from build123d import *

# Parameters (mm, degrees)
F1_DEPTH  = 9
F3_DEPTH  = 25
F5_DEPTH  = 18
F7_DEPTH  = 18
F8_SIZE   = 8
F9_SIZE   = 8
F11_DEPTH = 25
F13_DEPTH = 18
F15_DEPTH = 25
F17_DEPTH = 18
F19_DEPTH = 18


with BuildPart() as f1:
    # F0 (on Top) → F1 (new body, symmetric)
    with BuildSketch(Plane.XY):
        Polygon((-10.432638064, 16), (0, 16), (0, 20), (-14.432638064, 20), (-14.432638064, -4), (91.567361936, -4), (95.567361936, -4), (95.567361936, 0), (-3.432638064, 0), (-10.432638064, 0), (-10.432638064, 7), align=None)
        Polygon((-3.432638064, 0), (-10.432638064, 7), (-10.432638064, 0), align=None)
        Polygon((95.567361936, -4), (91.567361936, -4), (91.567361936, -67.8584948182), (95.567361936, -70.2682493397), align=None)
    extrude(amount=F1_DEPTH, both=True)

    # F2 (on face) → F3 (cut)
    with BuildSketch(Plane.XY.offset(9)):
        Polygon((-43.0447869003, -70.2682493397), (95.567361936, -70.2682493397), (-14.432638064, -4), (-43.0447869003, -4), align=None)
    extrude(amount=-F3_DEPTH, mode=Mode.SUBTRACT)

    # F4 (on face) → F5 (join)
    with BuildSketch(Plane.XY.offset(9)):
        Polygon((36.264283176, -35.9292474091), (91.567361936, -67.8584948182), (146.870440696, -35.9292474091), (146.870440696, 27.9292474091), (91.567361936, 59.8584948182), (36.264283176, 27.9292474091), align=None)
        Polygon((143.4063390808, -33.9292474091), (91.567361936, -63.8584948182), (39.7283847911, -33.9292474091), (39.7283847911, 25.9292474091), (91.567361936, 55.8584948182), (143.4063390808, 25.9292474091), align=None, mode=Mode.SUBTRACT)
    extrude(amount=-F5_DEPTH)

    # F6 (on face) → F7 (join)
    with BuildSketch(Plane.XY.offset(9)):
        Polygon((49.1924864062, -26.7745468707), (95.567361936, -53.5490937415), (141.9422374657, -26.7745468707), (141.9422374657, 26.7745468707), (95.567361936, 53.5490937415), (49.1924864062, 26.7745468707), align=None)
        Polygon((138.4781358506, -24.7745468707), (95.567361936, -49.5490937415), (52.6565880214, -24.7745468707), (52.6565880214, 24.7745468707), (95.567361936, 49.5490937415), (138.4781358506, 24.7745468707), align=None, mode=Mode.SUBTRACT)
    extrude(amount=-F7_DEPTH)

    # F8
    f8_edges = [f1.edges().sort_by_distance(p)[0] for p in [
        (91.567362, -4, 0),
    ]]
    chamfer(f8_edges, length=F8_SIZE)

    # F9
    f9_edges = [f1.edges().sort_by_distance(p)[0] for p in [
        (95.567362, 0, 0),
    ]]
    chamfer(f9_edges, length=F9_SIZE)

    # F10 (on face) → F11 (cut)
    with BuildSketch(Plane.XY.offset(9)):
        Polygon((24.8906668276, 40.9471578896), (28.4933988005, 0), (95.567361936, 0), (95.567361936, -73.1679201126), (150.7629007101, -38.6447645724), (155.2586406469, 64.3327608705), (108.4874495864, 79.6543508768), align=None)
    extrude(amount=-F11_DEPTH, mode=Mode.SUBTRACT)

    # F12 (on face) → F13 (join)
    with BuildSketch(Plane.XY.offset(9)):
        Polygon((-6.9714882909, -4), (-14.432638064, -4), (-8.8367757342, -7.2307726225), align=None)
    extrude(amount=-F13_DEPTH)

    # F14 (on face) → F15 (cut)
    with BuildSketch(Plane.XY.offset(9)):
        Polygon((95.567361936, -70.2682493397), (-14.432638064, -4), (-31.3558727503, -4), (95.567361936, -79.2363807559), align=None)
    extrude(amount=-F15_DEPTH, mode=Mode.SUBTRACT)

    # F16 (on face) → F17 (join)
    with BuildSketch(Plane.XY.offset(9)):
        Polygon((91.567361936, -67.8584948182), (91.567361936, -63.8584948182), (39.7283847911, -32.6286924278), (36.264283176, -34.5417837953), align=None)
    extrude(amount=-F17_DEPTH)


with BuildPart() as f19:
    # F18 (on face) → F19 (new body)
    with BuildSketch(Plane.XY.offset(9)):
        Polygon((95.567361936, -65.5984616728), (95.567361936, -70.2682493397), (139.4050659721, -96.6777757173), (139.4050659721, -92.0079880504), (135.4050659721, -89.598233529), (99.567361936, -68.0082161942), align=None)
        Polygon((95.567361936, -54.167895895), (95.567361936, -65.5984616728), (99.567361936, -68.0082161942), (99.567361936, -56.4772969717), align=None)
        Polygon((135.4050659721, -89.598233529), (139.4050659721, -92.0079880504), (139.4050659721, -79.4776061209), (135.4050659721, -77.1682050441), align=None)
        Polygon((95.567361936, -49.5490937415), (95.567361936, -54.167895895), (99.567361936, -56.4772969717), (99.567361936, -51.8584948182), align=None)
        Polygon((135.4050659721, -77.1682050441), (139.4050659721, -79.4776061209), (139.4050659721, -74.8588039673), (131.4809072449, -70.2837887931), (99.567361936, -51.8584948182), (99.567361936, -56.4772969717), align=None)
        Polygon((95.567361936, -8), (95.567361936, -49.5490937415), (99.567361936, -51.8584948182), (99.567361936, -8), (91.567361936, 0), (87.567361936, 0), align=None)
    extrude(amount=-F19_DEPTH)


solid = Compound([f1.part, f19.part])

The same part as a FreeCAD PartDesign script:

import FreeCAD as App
import Part
import Sketcher
Q = App.Units.Quantity


def edges_at(feature, points):
    """Names of the edges that pass closest to the given points."""
    edges = feature.Shape.Edges
    near = lambda p: min(range(len(edges)), key=lambda i: edges[i].distToShape(Part.Vertex(*p))[0])
    return sorted({f"Edge{near(p) + 1}" for p in points})


def add_polygon(sketch, points):
    """Adds a closed chain of lines whose ends are joined by coincident constraints."""
    first, n = sketch.GeometryCount, len(points)
    for a, b in zip(points, points[1:] + points[:1]):
        sketch.addGeometry(Part.LineSegment(App.Vector(*a, 0), App.Vector(*b, 0)), False)
    for i in range(n):
        sketch.addConstraint(Sketcher.Constraint("Coincident", first + i, 2, first + (i + 1) % n, 1))

doc = App.newDocument("Part")
params = doc.addObject("Spreadsheet::Sheet", "Params")
for row, (alias, value) in enumerate([
    ("sketch1_width", "106 mm"),
    ("sketch1_width2", "99 mm"),
    ("sketch1_height", "4 mm"),
    ("sketch1_height2", "24 mm"),
    ("sketch1_height3", "9 mm"),
    ("pad1_length", "18 mm"),
    ("pocket1_length", "25 mm"),
    ("pad2_length", "18 mm"),
    ("pad3_length", "18 mm"),
    ("chamfer_size", "8 mm"),
    ("chamfer2_size", "8 mm"),
    ("pocket2_length", "25 mm"),
    ("pad4_length", "18 mm"),
    ("pocket3_length", "25 mm"),
    ("sketch8_height", "4 mm"),
    ("pad5_length", "18 mm"),
    ("sketch9_width", "4 mm"),
    ("pad6_length", "18 mm"),
], start=1):
    params.set(f"A{row}", alias)
    params.set(f"B{row}", "=" + value)
    params.setAlias(f"B{row}", alias)

body = doc.addObject("PartDesign::Body", "Body")

# Sketch on XY plane
sketch1 = doc.addObject("Sketcher::SketchObject", "Sketch")
body.addObject(sketch1)
sketch1.AttachmentSupport = (doc.XY_Plane, [""])
sketch1.MapMode = "FlatFace"
add_polygon(sketch1, [(-10.4, 16), (0, 16), (0, 20), (-14.4, 20), (-14.4, -4), (91.6, -4), (91.6, -67.9), (95.6, -70.3), (95.6, 0), (-3.4, 0), (-10.4, 7)])  # lines 0-10
sketch1.addConstraint([
    Sketcher.Constraint("Horizontal", 0),
    Sketcher.Constraint("Vertical", 1),
    Sketcher.Constraint("Horizontal", 2),
    Sketcher.Constraint("Vertical", 3),
    Sketcher.Constraint("Horizontal", 4),
    Sketcher.Constraint("Vertical", 5),
    Sketcher.Constraint("Vertical", 7),
    Sketcher.Constraint("Horizontal", 8),
    Sketcher.Constraint("Vertical", 10),
    Sketcher.Constraint("PointOnObject", 0, 2, -2),
    Sketcher.Constraint("PointOnObject", 7, 2, -1),
    Sketcher.Constraint("DistanceX", 4, 1, 4, 2, 106.0),
    Sketcher.Constraint("DistanceX", 8, 2, 8, 1, 99.0),
    Sketcher.Constraint("DistanceY", 1, 1, 1, 2, 4.0),
    Sketcher.Constraint("DistanceY", 3, 2, 3, 1, 24.0),
    Sketcher.Constraint("DistanceY", 10, 1, 10, 2, 9.0),
    Sketcher.Constraint("Angle", 9, Q("135 deg")),
    Sketcher.Constraint("DistanceY", -1, 1, 0, 2, 16.0),
    Sketcher.Constraint("DistanceX", 5, 2, 6, 2, 4.0),
    Sketcher.Constraint("DistanceX", 0, 1, 0, 2, 10.432638),
    Sketcher.Constraint("DistanceY", 7, 1, 7, 2, 70.268249),
    Sketcher.Constraint("DistanceY", 5, 2, 5, 1, 63.858495),
])
sketch1.setExpression("Constraints[22]", "Params.sketch1_width")
sketch1.setExpression("Constraints[23]", "Params.sketch1_width2")
sketch1.setExpression("Constraints[24]", "Params.sketch1_height")
sketch1.setExpression("Constraints[25]", "Params.sketch1_height2")
sketch1.setExpression("Constraints[26]", "Params.sketch1_height3")
pad1 = doc.addObject("PartDesign::Pad", "Pad")
body.addObject(pad1)
pad1.Profile = sketch1
pad1.setExpression("Length", "Params.pad1_length")
pad1.Midplane = True

# Sketch on XY plane
sketch2 = doc.addObject("Sketcher::SketchObject", "Sketch001")
body.addObject(sketch2)
sketch2.AttachmentSupport = (doc.XY_Plane, [""])
sketch2.MapMode = "FlatFace"
sketch2.AttachmentOffset = App.Placement(App.Vector(0, 0, 9), App.Rotation())
add_polygon(sketch2, [(-43, -70), (96, -70), (-14, -4), (-43, -4)])  # lines 0-3
sketch2.addConstraint([
    Sketcher.Constraint("Horizontal", 0),
    Sketcher.Constraint("Horizontal", 2),
    Sketcher.Constraint("Vertical", 3),
    Sketcher.Constraint("DistanceY", 1, 2, -1, 1, 4.0),
    Sketcher.Constraint("DistanceX", 1, 2, 0, 2, 110.0),
    Sketcher.Constraint("DistanceX", 0, 1, 0, 2, 138.612149),
    Sketcher.Constraint("DistanceY", 3, 2, 3, 1, 66.268249),
    Sketcher.Constraint("DistanceX", -1, 1, 0, 2, 95.567362),
])
pocket1 = doc.addObject("PartDesign::Pocket", "Pocket")
body.addObject(pocket1)
pocket1.Profile = sketch2
pocket1.setExpression("Length", "Params.pocket1_length")

# Sketch on XY plane
sketch3 = doc.addObject("Sketcher::SketchObject", "Sketch002")
body.addObject(sketch3)
sketch3.AttachmentSupport = (doc.XY_Plane, [""])
sketch3.MapMode = "FlatFace"
sketch3.AttachmentOffset = App.Placement(App.Vector(0, 0, 9), App.Rotation())
add_polygon(sketch3, [(36, -36), (92, -68), (147, -36), (147, 28), (92, 60), (36, 28)])  # lines 0-5
add_polygon(sketch3, [(143, 26), (143, -34), (92, -64), (40, -34), (40, 26), (92, 56)])  # lines 6-11
sketch3.addConstraint([
    Sketcher.Constraint("Vertical", 2),
    Sketcher.Constraint("Vertical", 5),
    Sketcher.Constraint("Vertical", 6),
    Sketcher.Constraint("Vertical", 9),
    Sketcher.Constraint("Parallel", 0, 3),
    Sketcher.Constraint("Parallel", 1, 4),
    Sketcher.Constraint("Parallel", 4, 7),
    Sketcher.Constraint("Parallel", 3, 8),
    Sketcher.Constraint("Parallel", 7, 10),
    Sketcher.Constraint("Parallel", 8, 11),
    Sketcher.Constraint("Horizontal", 2, 2, 4, 2),
    Sketcher.Constraint("Horizontal", 1, 2, 5, 2),
    Sketcher.Constraint("Horizontal", 6, 2, 8, 2),
    Sketcher.Constraint("Horizontal", 9, 2, 11, 2),
    Sketcher.Constraint("Vertical", 0, 2, 3, 2),
    Sketcher.Constraint("Vertical", 3, 2, 7, 2),
    Sketcher.Constraint("Angle", 0, Q("-30 deg")),
    Sketcher.Constraint("DistanceY", 1, 2, 6, 2, 2.0),
    Sketcher.Constraint("DistanceY", 0, 2, 7, 2, 4.0),
    Sketcher.Constraint("DistanceY", 9, 2, 4, 2, 2.0),
    Sketcher.Constraint("DistanceY", 2, 1, 2, 2, 63.858495),
    Sketcher.Constraint("DistanceX", -1, 1, 0, 2, 91.567362),
    Sketcher.Constraint("DistanceX", -1, 1, 1, 2, 146.870441),
    Sketcher.Constraint("DistanceY", 0, 2, -1, 1, 67.858495),
])
pad2 = doc.addObject("PartDesign::Pad", "Pad001")
body.addObject(pad2)
pad2.Profile = sketch3
pad2.setExpression("Length", "Params.pad2_length")
pad2.Reversed = True

# Sketch on XY plane
sketch4 = doc.addObject("Sketcher::SketchObject", "Sketch003")
body.addObject(sketch4)
sketch4.AttachmentSupport = (doc.XY_Plane, [""])
sketch4.MapMode = "FlatFace"
sketch4.AttachmentOffset = App.Placement(App.Vector(0, 0, 9), App.Rotation())
add_polygon(sketch4, [(49, -27), (96, -54), (142, -27), (142, 27), (96, 54), (49, 27)])  # lines 0-5
add_polygon(sketch4, [(138, 25), (138, -25), (96, -50), (53, -25), (53, 25), (96, 50)])  # lines 6-11
sketch4.addConstraint([
    Sketcher.Constraint("Vertical", 2),
    Sketcher.Constraint("Vertical", 5),
    Sketcher.Constraint("Vertical", 6),
    Sketcher.Constraint("Vertical", 9),
    Sketcher.Constraint("Symmetric", 0, 2, 3, 2, -1),
    Sketcher.Constraint("Symmetric", 7, 2, 10, 2, -1),
    Sketcher.Constraint("Parallel", 0, 3),
    Sketcher.Constraint("Parallel", 1, 4),
    Sketcher.Constraint("Parallel", 4, 7),
    Sketcher.Constraint("Parallel", 3, 8),
    Sketcher.Constraint("Parallel", 7, 10),
    Sketcher.Constraint("Parallel", 8, 11),
    Sketcher.Constraint("Horizontal", 2, 2, 4, 2),
    Sketcher.Constraint("Horizontal", 1, 2, 5, 2),
    Sketcher.Constraint("Horizontal", 6, 2, 8, 2),
    Sketcher.Constraint("Vertical", 3, 2, 7, 2),
    Sketcher.Constraint("Angle", 0, Q("-30 deg")),
    Sketcher.Constraint("DistanceY", 1, 2, 6, 2, 2.0),
    Sketcher.Constraint("DistanceY", 0, 2, 7, 2, 4.0),
    Sketcher.Constraint("DistanceY", 2, 1, 2, 2, 53.549094),
    Sketcher.Constraint("DistanceX", -1, 1, 0, 2, 95.567362),
    Sketcher.Constraint("DistanceX", -1, 1, 8, 2, 52.656588),
])
pad3 = doc.addObject("PartDesign::Pad", "Pad002")
body.addObject(pad3)
pad3.Profile = sketch4
pad3.setExpression("Length", "Params.pad3_length")
pad3.Reversed = True
doc.recompute()

chamfer = doc.addObject("PartDesign::Chamfer", "Chamfer")
body.addObject(chamfer)
chamfer.Base = (pad3, edges_at(pad3, [(91.567, -4, 0)]))
chamfer.setExpression("Size", "Params.chamfer_size")
doc.recompute()

chamfer2 = doc.addObject("PartDesign::Chamfer", "Chamfer001")
body.addObject(chamfer2)
chamfer2.Base = (chamfer, edges_at(chamfer, [(95.567, 0, 0)]))
chamfer2.setExpression("Size", "Params.chamfer2_size")

# Sketch on XY plane
sketch5 = doc.addObject("Sketcher::SketchObject", "Sketch004")
body.addObject(sketch5)
sketch5.AttachmentSupport = (doc.XY_Plane, [""])
sketch5.MapMode = "FlatFace"
sketch5.AttachmentOffset = App.Placement(App.Vector(0, 0, 9), App.Rotation())
add_polygon(sketch5, [(25, 41), (28, 0), (96, 0), (96, -73), (151, -39), (155, 64), (108, 80)])  # lines 0-6
sketch5.addConstraint([
    Sketcher.Constraint("Horizontal", 1),
    Sketcher.Constraint("Vertical", 2),
    Sketcher.Constraint("PointOnObject", 0, 2, -1),
    Sketcher.Constraint("DistanceY", 2, 2, 2, 1, 73.16792),
    Sketcher.Constraint("DistanceX", -1, 1, 0, 2, 28.493399),
    Sketcher.Constraint("DistanceX", -1, 1, 3, 2, 150.762901),
    Sketcher.Constraint("Distance", 5, 49.216821),
    Sketcher.Constraint("Distance", 6, 92.123118),
    Sketcher.Constraint("DistanceX", 1, 1, 1, 2, 67.073963),
    Sketcher.Constraint("DistanceX", -1, 1, 4, 2, 155.258641),
    Sketcher.Constraint("DistanceY", -1, 1, 4, 2, 64.332761),
    Sketcher.Constraint("DistanceX", -1, 1, 5, 2, 108.48745),
    Sketcher.Constraint("DistanceX", 6, 2, 0, 2, 3.602732),
    Sketcher.Constraint("Distance", 3, 65.102963),
])
pocket2 = doc.addObject("PartDesign::Pocket", "Pocket001")
body.addObject(pocket2)
pocket2.Profile = sketch5
pocket2.setExpression("Length", "Params.pocket2_length")

# Sketch on XY plane
sketch6 = doc.addObject("Sketcher::SketchObject", "Sketch005")
body.addObject(sketch6)
sketch6.AttachmentSupport = (doc.XY_Plane, [""])
sketch6.MapMode = "FlatFace"
sketch6.AttachmentOffset = App.Placement(App.Vector(0, 0, 9), App.Rotation())
add_polygon(sketch6, [(-7, -4), (-14.4, -4), (-8.8, -7.2)])  # lines 0-2
sketch6.addConstraint([
    Sketcher.Constraint("Horizontal", 0),
    Sketcher.Constraint("Perpendicular", 1, 2),
    Sketcher.Constraint("Angle", 1, Q("-30 deg")),
    Sketcher.Constraint("DistanceY", 0, 2, -1, 1, 4.0),
    Sketcher.Constraint("DistanceX", 0, 2, 0, 1, 7.46115),
    Sketcher.Constraint("DistanceX", 0, 2, -1, 1, 14.432638),
])
pad4 = doc.addObject("PartDesign::Pad", "Pad003")
body.addObject(pad4)
pad4.Profile = sketch6
pad4.setExpression("Length", "Params.pad4_length")
pad4.Reversed = True

# Sketch on XY plane
sketch7 = doc.addObject("Sketcher::SketchObject", "Sketch006")
body.addObject(sketch7)
sketch7.AttachmentSupport = (doc.XY_Plane, [""])
sketch7.MapMode = "FlatFace"
sketch7.AttachmentOffset = App.Placement(App.Vector(0, 0, 9), App.Rotation())
add_polygon(sketch7, [(96, -70), (-14, -4), (-31, -4), (96, -79)])  # lines 0-3
sketch7.addConstraint([
    Sketcher.Constraint("Horizontal", 1),
    Sketcher.Constraint("Vertical", 3),
    Sketcher.Constraint("DistanceY", 0, 2, -1, 1, 4.0),
    Sketcher.Constraint("DistanceX", 0, 2, 2, 2, 110.0),
    Sketcher.Constraint("DistanceY", 3, 1, 3, 2, 8.968131),
    Sketcher.Constraint("Distance", 0, 128.419161),
    Sketcher.Constraint("DistanceX", 1, 2, 1, 1, 16.923235),
    Sketcher.Constraint("DistanceX", 0, 2, -1, 1, 14.432638),
])
pocket3 = doc.addObject("PartDesign::Pocket", "Pocket002")
body.addObject(pocket3)
pocket3.Profile = sketch7
pocket3.setExpression("Length", "Params.pocket3_length")

# Sketch on XY plane
sketch8 = doc.addObject("Sketcher::SketchObject", "Sketch007")
body.addObject(sketch8)
sketch8.AttachmentSupport = (doc.XY_Plane, [""])
sketch8.MapMode = "FlatFace"
sketch8.AttachmentOffset = App.Placement(App.Vector(0, 0, 9), App.Rotation())
add_polygon(sketch8, [(91.567362, -67.858495), (91.567362, -63.858495), (39.728385, -32.628692), (36.264283, -34.541784)])  # lines 0-3
sketch8.addConstraint([
    Sketcher.Constraint("Vertical", 0),
    Sketcher.Constraint("Parallel", 1, 3),
    Sketcher.Constraint("DistanceY", 0, 1, 0, 2, 4.0),
    Sketcher.Constraint("DistanceX", 2, 2, 1, 2, 3.464102),
    Sketcher.Constraint("Distance", 2, 3.957261),
    Sketcher.Constraint("Distance", 3, 64.563409),
    Sketcher.Constraint("DistanceX", -1, 1, 0, 2, 91.567362),
    Sketcher.Constraint("DistanceY", 0, 2, -1, 1, 63.858495),
])
sketch8.setExpression("Constraints[6]", "Params.sketch8_height")
pad5 = doc.addObject("PartDesign::Pad", "Pad004")
body.addObject(pad5)
pad5.Profile = sketch8
pad5.setExpression("Length", "Params.pad5_length")
pad5.Reversed = True
body2 = doc.addObject("PartDesign::Body", "Body001")

# Sketch on XY plane
sketch9 = doc.addObject("Sketcher::SketchObject", "Sketch008")
body2.addObject(sketch9)
sketch9.AttachmentSupport = (doc.getObject("XY_Plane001"), [""])
sketch9.MapMode = "FlatFace"
sketch9.AttachmentOffset = App.Placement(App.Vector(0, 0, 9), App.Rotation())
add_polygon(sketch9, [(95.6, -70.3), (139.4, -96.7), (139.4, -74.9), (131.5, -70.3), (99.6, -51.9), (99.6, -8), (91.6, 0), (87.6, 0), (95.6, -8)])  # lines 0-8
add_polygon(sketch9, [(135.4, -77.2), (135.4, -89.6), (99.6, -68), (99.6, -56.5)])  # lines 9-12
sketch9.addConstraint([
    Sketcher.Constraint("Vertical", 1),
    Sketcher.Constraint("Vertical", 4),
    Sketcher.Constraint("Horizontal", 6),
    Sketcher.Constraint("Vertical", 8),
    Sketcher.Constraint("Vertical", 9),
    Sketcher.Constraint("Vertical", 11),
    Sketcher.Constraint("PointOnObject", 5, 2, -1),
    Sketcher.Constraint("Parallel", 2, 3),
    Sketcher.Constraint("Parallel", 5, 7),
    Sketcher.Constraint("Parallel", 0, 10),
    Sketcher.Constraint("Parallel", 3, 12),
    Sketcher.Constraint("Horizontal", 4, 2, 7, 2),
    Sketcher.Constraint("Vertical", 4, 2, 10, 2),
    Sketcher.Constraint("DistanceX", 6, 2, 6, 1, 4.0),
    Sketcher.Constraint("Angle", 2, Q("150 deg")),
    Sketcher.Constraint("Angle", 5, Q("135 deg")),
    Sketcher.Constraint("DistanceY", 4, 2, -1, 1, 8.0),
    Sketcher.Constraint("DistanceX", 9, 2, 0, 2, 4.0),
    Sketcher.Constraint("DistanceY", 1, 1, 1, 2, 21.818972),
    Sketcher.Constraint("DistanceY", 8, 2, 8, 1, 62.268249),
    Sketcher.Constraint("DistanceY", 9, 2, 9, 1, 12.430028),
    Sketcher.Constraint("DistanceY", 11, 1, 11, 2, 11.530919),
    Sketcher.Constraint("DistanceY", 12, 2, 1, 2, 2.309401),
    Sketcher.Constraint("Distance", 2, 9.15003),
    Sketcher.Constraint("DistanceY", 2, 2, -1, 1, 70.283789),
    Sketcher.Constraint("DistanceX", -1, 1, 3, 2, 99.567362),
])
sketch9.setExpression("Constraints[26]", "Params.sketch9_width")
pad6 = doc.addObject("PartDesign::Pad", "Pad005")
body2.addObject(pad6)
pad6.Profile = sketch9
pad6.setExpression("Length", "Params.pad6_length")
pad6.Reversed = True

doc.recompute()
